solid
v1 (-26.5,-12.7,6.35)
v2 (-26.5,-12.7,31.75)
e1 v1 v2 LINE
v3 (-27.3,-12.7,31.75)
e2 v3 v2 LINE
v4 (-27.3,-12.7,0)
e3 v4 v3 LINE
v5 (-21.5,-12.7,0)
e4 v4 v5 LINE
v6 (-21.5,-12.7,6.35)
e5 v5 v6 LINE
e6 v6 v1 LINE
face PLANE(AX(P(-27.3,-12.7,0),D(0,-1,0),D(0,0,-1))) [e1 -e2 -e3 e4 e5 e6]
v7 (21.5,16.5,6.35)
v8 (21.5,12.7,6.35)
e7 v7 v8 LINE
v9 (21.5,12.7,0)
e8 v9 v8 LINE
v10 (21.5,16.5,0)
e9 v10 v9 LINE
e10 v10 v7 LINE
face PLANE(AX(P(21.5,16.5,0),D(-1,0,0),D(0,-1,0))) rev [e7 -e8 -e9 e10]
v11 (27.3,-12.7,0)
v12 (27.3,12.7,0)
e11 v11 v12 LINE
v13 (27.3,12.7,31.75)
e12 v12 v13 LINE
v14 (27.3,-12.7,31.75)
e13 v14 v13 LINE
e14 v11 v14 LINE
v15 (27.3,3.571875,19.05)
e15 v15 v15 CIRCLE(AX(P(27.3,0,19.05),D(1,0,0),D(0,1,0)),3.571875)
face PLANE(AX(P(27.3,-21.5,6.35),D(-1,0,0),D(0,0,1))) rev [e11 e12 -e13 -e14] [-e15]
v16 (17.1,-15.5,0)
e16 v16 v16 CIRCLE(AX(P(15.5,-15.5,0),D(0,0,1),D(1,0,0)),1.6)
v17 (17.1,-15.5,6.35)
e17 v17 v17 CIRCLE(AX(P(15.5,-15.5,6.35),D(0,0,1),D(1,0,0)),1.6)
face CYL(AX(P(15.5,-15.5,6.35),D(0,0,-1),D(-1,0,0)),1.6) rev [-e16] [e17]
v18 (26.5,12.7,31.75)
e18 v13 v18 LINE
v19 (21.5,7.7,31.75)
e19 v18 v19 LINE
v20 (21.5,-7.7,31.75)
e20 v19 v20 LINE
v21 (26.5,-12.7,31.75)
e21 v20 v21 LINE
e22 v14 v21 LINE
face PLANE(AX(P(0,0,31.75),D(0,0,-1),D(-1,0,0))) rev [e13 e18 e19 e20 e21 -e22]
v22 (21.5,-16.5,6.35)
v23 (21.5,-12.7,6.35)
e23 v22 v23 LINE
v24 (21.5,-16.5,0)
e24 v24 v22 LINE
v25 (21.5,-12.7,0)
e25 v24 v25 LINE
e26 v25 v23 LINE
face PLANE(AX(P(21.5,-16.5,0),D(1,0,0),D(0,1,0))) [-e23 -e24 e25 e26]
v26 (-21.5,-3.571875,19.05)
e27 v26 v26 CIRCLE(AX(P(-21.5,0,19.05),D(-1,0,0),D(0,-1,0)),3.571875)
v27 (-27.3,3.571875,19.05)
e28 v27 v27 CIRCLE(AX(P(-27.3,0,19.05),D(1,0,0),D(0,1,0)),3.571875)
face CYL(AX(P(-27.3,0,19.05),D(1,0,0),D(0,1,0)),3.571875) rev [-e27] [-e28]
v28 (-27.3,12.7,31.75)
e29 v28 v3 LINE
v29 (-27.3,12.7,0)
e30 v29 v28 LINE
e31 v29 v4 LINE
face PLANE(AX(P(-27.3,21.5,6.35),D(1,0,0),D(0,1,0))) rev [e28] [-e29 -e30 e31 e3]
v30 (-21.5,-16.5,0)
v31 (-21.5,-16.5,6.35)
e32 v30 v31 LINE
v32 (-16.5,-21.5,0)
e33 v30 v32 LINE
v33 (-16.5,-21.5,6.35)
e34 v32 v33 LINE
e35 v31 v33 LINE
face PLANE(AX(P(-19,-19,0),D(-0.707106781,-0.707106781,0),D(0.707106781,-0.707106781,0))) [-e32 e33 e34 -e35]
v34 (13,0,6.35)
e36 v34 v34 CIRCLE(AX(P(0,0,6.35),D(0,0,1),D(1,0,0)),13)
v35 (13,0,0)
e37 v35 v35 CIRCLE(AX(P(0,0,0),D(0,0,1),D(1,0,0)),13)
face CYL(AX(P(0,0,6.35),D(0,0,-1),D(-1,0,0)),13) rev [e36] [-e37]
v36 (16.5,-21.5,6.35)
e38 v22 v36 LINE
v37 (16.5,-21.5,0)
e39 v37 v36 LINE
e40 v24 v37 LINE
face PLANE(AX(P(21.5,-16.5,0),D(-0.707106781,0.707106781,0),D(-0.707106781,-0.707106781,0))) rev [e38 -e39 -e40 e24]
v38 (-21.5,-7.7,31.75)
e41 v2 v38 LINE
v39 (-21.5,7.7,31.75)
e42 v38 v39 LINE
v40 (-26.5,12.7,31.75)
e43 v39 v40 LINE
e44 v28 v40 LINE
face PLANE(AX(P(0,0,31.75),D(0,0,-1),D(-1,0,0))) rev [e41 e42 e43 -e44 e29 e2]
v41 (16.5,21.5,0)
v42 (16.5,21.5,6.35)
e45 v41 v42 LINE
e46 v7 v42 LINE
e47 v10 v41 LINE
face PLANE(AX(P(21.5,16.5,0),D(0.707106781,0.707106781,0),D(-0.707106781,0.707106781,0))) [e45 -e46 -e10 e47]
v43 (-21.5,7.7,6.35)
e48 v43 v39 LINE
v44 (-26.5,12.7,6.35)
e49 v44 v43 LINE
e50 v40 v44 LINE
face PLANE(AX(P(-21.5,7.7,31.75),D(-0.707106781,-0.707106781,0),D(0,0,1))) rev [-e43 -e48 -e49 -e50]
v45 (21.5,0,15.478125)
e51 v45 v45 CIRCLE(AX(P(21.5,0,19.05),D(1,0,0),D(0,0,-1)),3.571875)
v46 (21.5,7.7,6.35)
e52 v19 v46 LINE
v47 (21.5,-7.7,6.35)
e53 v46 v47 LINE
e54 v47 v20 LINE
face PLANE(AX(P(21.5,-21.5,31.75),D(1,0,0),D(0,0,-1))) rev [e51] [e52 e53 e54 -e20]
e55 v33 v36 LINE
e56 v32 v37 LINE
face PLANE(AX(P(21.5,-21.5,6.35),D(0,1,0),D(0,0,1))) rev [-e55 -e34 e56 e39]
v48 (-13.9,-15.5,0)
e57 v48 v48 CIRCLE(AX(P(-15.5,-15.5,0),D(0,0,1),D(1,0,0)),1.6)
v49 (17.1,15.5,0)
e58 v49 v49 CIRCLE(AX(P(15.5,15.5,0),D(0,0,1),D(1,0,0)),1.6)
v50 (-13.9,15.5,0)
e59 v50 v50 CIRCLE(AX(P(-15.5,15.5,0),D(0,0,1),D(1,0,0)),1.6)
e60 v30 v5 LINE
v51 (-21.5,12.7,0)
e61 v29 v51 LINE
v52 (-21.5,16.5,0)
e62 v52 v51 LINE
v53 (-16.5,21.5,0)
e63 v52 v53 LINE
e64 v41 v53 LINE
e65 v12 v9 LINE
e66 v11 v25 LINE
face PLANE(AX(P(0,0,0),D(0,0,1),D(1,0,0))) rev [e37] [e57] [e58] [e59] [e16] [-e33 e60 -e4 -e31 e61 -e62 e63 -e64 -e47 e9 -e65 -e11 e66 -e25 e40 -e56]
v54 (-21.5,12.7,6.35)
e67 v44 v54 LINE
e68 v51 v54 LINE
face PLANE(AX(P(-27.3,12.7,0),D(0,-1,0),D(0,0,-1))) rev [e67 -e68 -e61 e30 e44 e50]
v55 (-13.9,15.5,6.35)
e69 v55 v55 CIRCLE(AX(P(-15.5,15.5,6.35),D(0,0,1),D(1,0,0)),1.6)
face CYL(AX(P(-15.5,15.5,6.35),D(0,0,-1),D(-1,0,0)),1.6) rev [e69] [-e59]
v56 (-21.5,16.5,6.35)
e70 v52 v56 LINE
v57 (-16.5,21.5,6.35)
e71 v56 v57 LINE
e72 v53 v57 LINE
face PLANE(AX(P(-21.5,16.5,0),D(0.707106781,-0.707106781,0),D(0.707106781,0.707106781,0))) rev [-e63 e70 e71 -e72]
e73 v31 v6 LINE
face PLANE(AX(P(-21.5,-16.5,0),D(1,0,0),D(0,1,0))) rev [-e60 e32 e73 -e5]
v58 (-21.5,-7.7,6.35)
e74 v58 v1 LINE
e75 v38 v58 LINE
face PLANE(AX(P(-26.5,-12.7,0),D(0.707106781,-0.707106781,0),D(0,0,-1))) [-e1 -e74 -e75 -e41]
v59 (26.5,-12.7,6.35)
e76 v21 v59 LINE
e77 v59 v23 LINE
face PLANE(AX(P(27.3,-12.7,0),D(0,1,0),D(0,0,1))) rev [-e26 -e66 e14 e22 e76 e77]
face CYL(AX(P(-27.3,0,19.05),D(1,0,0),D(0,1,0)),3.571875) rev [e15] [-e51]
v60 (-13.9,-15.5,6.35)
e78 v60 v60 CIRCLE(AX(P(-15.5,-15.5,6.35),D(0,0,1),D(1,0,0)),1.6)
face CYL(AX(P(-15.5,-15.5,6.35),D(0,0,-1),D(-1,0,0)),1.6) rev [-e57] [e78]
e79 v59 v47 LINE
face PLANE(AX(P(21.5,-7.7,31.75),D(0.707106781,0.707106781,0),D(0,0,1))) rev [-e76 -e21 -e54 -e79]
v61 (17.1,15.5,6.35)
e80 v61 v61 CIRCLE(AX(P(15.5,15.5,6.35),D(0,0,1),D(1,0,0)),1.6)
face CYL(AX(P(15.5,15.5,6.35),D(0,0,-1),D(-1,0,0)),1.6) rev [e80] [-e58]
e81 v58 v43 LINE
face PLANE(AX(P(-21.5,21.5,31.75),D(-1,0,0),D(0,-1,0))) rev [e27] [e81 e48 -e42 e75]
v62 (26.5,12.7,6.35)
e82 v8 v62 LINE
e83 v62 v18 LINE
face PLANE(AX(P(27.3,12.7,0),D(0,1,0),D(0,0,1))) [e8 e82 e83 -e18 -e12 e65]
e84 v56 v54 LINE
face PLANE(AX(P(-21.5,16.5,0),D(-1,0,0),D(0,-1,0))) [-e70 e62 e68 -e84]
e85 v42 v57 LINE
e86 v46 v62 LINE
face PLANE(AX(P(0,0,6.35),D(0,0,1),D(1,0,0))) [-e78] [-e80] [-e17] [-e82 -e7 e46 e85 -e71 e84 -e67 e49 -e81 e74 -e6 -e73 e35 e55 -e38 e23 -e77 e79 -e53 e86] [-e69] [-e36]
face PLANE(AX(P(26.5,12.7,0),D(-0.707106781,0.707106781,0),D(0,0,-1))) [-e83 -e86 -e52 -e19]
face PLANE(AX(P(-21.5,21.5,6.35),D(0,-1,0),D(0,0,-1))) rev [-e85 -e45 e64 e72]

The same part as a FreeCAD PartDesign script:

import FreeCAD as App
import Part
import Sketcher
from FreeCAD import Vector


def edges_at(feature, points):
    """Names of the edges that pass closest to the given points."""
    edges = feature.Shape.Edges
    near = lambda p: min(range(len(edges)), key=lambda i: edges[i].distToShape(Part.Vertex(*p))[0])
    return sorted({f"Edge{near(p) + 1}" for p in points})

doc = App.newDocument("Part")
params = doc.addObject("Spreadsheet::Sheet", "Params")
for row, (alias, value) in enumerate([
    ("sketch1_diameter", "26 mm"),
    ("sketch1_diameter2", "3.2 mm"),
    ("sketch1_height", "43 mm"),
    ("sketch1_width", "54.6 mm"),
    ("pad1_length", "6.35 mm"),
    ("sketch2_height", "43 mm"),
    ("sketch2_width", "5.8 mm"),
    ("pad2_length", "25.4 mm"),
    ("sketch3_width", "5.8 mm"),
    ("sketch3_width2", "10.8 mm"),
    ("sketch3_height", "3.8 mm"),
    ("chamfer_size", "5 mm"),
], start=1):
    params.set(f"A{row}", alias)
    params.set(f"B{row}", "=" + value)
    params.setAlias(f"B{row}", alias)

body = doc.addObject("PartDesign::Body", "Body")

# Sketch on XY plane
sketch1 = body.newObject("Sketcher::SketchObject", "Sketch")
sketch1.AttachmentSupport = (doc.getObject("XY_Plane"), [""])
sketch1.MapMode = "FlatFace"
sketch1.addGeometry(Part.LineSegment(Vector(27.3, 21.5, 0), Vector(-27.3, 21.5, 0)), False)
sketch1.addGeometry(Part.LineSegment(Vector(-27.3, 21.5, 0), Vector(-27.3, -21.5, 0)), False)
sketch1.addGeometry(Part.LineSegment(Vector(-27.3, -21.5, 0), Vector(27.3, -21.5, 0)), False)
sketch1.addGeometry(Part.LineSegment(Vector(27.3, -21.5, 0), Vector(27.3, 21.5, 0)), False)
sketch1.addGeometry(Part.Circle(Vector(15.5, -15.5, 0), Vector(0, 0, 1), 1.6), False)
sketch1.addGeometry(Part.Circle(Vector(-15.5, -15.5, 0), Vector(0, 0, 1), 1.6), False)
sketch1.addGeometry(Part.Circle(Vector(15.5, 15.5, 0), Vector(0, 0, 1), 1.6), False)
sketch1.addGeometry(Part.Circle(Vector(0, 0, 0), Vector(0, 0, 1), 13), False)
sketch1.addGeometry(Part.Circle(Vector(-15.5, 15.5, 0), Vector(0, 0, 1), 1.6), False)
sketch1.addConstraint(Sketcher.Constraint("Coincident", 0, 2, 1, 1))
sketch1.addConstraint(Sketcher.Constraint("Coincident", 1, 2, 2, 1))
sketch1.addConstraint(Sketcher.Constraint("Coincident", 2, 2, 3, 1))
sketch1.addConstraint(Sketcher.Constraint("Coincident", 3, 2, 0, 1))
sketch1.addConstraint(Sketcher.Constraint("Horizontal", 0))
sketch1.addConstraint(Sketcher.Constraint("Vertical", 1))
sketch1.addConstraint(Sketcher.Constraint("Horizontal", 2))
sketch1.addConstraint(Sketcher.Constraint("Vertical", 3))
sketch1.addConstraint(Sketcher.Constraint("Coincident", 7, 3, -1, 1))
sketch1.addConstraint(Sketcher.Constraint("Equal", 4, 5))
sketch1.addConstraint(Sketcher.Constraint("Equal", 5, 6))
sketch1.addConstraint(Sketcher.Constraint("Equal", 6, 8))
sketch1.addConstraint(Sketcher.Constraint("Symmetric", 5, 3, 6, 3, -1, 1))
sketch1.addConstraint(Sketcher.Constraint("Symmetric", 4, 3, 8, 3, -1, 1))
sketch1.addConstraint(Sketcher.Constraint("Symmetric", 0, 2, 2, 2, -1, 1))
sketch1.addConstraint(Sketcher.Constraint("Symmetric", 4, 3, 5, 3, -2))
sketch1.addConstraint(Sketcher.Constraint("Diameter", 7, 26.0))
sketch1.addConstraint(Sketcher.Constraint("Diameter", 4, 3.2))
sketch1.addConstraint(Sketcher.Constraint("DistanceY", 1, 2, 1, 1, 43.0))
sketch1.addConstraint(Sketcher.Constraint("DistanceX", 0, 2, 0, 1, 54.6))
sketch1.addConstraint(Sketcher.Constraint("DistanceX", 5, 3, 4, 3, 31.0))
sketch1.addConstraint(Sketcher.Constraint("DistanceY", 4, 3, 6, 3, 31.0))
sketch1.setExpression("Constraints[16]", "Params.sketch1_diameter")
sketch1.setExpression("Constraints[17]", "Params.sketch1_diameter2")
sketch1.setExpression("Constraints[18]", "Params.sketch1_height")
sketch1.setExpression("Constraints[19]", "Params.sketch1_width")
pad1 = body.newObject("PartDesign::Pad", "Pad")
pad1.Profile = sketch1
pad1.setExpression("Length", "Params.pad1_length")

# Sketch on XY plane
sketch2 = body.newObject("Sketcher::SketchObject", "Sketch001")
sketch2.AttachmentSupport = (doc.getObject("XY_Plane"), [""])
sketch2.MapMode = "FlatFace"
sketch2.AttachmentOffset = App.Placement(Vector(0, 0, 6.35), App.Rotation())
sketch2.addGeometry(Part.LineSegment(Vector(-27.3, 21.5, 0), Vector(-27.3, -21.5, 0)), False)
sketch2.addGeometry(Part.LineSegment(Vector(-27.3, -21.5, 0), Vector(-21.5, -21.5, 0)), False)
sketch2.addGeometry(Part.LineSegment(Vector(-21.5, -21.5, 0), Vector(-21.5, 21.5, 0)), False)
sketch2.addGeometry(Part.LineSegment(Vector(-21.5, 21.5, 0), Vector(-27.3, 21.5, 0)), False)
sketch2.addGeometry(Part.LineSegment(Vector(21.5, 21.5, 0), Vector(21.5, -21.5, 0)), False)
sketch2.addGeometry(Part.LineSegment(Vector(21.5, -21.5, 0), Vector(27.3, -21.5, 0)), False)
sketch2.addGeometry(Part.LineSegment(Vector(27.3, -21.5, 0), Vector(27.3, 21.5, 0)), False)
sketch2.addGeometry(Part.LineSegment(Vector(27.3, 21.5, 0), Vector(21.5, 21.5, 0)), False)
sketch2.addConstraint(Sketcher.Constraint("Coincident", 0, 2, 1, 1))
sketch2.addConstraint(Sketcher.Constraint("Coincident", 1, 2, 2, 1))
sketch2.addConstraint(Sketcher.Constraint("Coincident", 2, 2, 3, 1))
sketch2.addConstraint(Sketcher.Constraint("Coincident", 3, 2, 0, 1))
sketch2.addConstraint(Sketcher.Constraint("Coincident", 4, 2, 5, 1))
sketch2.addConstraint(Sketcher.Constraint("Coincident", 5, 2, 6, 1))
sketch2.addConstraint(Sketcher.Constraint("Coincident", 6, 2, 7, 1))
sketch2.addConstraint(Sketcher.Constraint("Coincident", 7, 2, 4, 1))
sketch2.addConstraint(Sketcher.Constraint("Vertical", 0))
sketch2.addConstraint(Sketcher.Constraint("Horizontal", 1))
sketch2.addConstraint(Sketcher.Constraint("Vertical", 2))
sketch2.addConstraint(Sketcher.Constraint("Horizontal", 3))
sketch2.addConstraint(Sketcher.Constraint("Vertical", 4))
sketch2.addConstraint(Sketcher.Constraint("Horizontal", 5))
sketch2.addConstraint(Sketcher.Constraint("Vertical", 6))
sketch2.addConstraint(Sketcher.Constraint("Horizontal", 7))
sketch2.addConstraint(Sketcher.Constraint("Symmetric", 2, 2, 4, 2, -1, 1))
sketch2.addConstraint(Sketcher.Constraint("Symmetric", 0, 2, 6, 2, -1, 1))
sketch2.addConstraint(Sketcher.Constraint("Horizontal", 1, 2, 4, 2))
sketch2.addConstraint(Sketcher.Constraint("DistanceY", 0, 2, 0, 1, 43.0))
sketch2.addConstraint(Sketcher.Constraint("DistanceX", 1, 1, 1, 2, 5.8))
sketch2.addConstraint(Sketcher.Constraint("DistanceX", 1, 2, 4, 2, 43.0))
sketch2.setExpression("Constraints[19]", "Params.sketch2_height")
sketch2.setExpression("Constraints[20]", "Params.sketch2_width")
pad2 = body.newObject("PartDesign::Pad", "Pad001")
pad2.Profile = sketch2
pad2.setExpression("Length", "Params.pad2_length")

# Sketch on XY plane
sketch3 = body.newObject("Sketcher::SketchObject", "Sketch002")
sketch3.AttachmentSupport = (doc.getObject("XY_Plane"), [""])
sketch3.MapMode = "FlatFace"
sketch3.AttachmentOffset = App.Placement(Vector(0, 0, 6.35), App.Rotation())
sketch3.addGeometry(Part.LineSegment(Vector(-27.3, 12.7, 0), Vector(-21.5, 12.7, 0)), False)
sketch3.addGeometry(Part.LineSegment(Vector(-21.5, 12.7, 0), Vector(-21.5, 16.5, 0)), False)
sketch3.addGeometry(Part.LineSegment(Vector(-21.5, 16.5, 0), Vector(-16.5, 21.5, 0)), False)
sketch3.addGeometry(Part.LineSegment(Vector(-16.5, 21.5, 0), Vector(-27.3, 21.5, 0)), False)
sketch3.addGeometry(Part.LineSegment(Vector(-27.3, 21.5, 0), Vector(-27.3, 12.7, 0)), False)
sketch3.addGeometry(Part.LineSegment(Vector(16.5, 21.5, 0), Vector(21.5, 16.5, 0)), False)
sketch3.addGeometry(Part.LineSegment(Vector(21.5, 16.5, 0), Vector(21.5, 12.7, 0)), False)
sketch3.addGeometry(Part.LineSegment(Vector(21.5, 12.7, 0), Vector(27.3, 12.7, 0)), False)
sketch3.addGeometry(Part.LineSegment(Vector(27.3, 12.7, 0), Vector(27.3, 21.5, 0)), False)
sketch3.addGeometry(Part.LineSegment(Vector(27.3, 21.5, 0), Vector(16.5, 21.5, 0)), False)
sketch3.addGeometry(Part.LineSegment(Vector(27.3, -21.5, 0), Vector(27.3, -12.7, 0)), False)
sketch3.addGeometry(Part.LineSegment(Vector(27.3, -12.7, 0), Vector(21.5, -12.7, 0)), False)
sketch3.addGeometry(Part.LineSegment(Vector(21.5, -12.7, 0), Vector(21.5, -16.5, 0)), False)
sketch3.addGeometry(Part.LineSegment(Vector(21.5, -16.5, 0), Vector(16.5, -21.5, 0)), False)
sketch3.addGeometry(Part.LineSegment(Vector(16.5, -21.5, 0), Vector(27.3, -21.5, 0)), False)
sketch3.addGeometry(Part.LineSegment(Vector(-27.3, -21.5, 0), Vector(-16.5, -21.5, 0)), False)
sketch3.addGeometry(Part.LineSegment(Vector(-16.5, -21.5, 0), Vector(-21.5, -16.5, 0)), False)
sketch3.addGeometry(Part.LineSegment(Vector(-21.5, -16.5, 0), Vector(-21.5, -12.7, 0)), False)
sketch3.addGeometry(Part.LineSegment(Vector(-21.5, -12.7, 0), Vector(-27.3, -12.7, 0)), False)
sketch3.addGeometry(Part.LineSegment(Vector(-27.3, -12.7, 0), Vector(-27.3, -21.5, 0)), False)
sketch3.addConstraint(Sketcher.Constraint("Coincident", 0, 2, 1, 1))
sketch3.addConstraint(Sketcher.Constraint("Coincident", 1, 2, 2, 1))
sketch3.addConstraint(Sketcher.Constraint("Coincident", 2, 2, 3, 1))
sketch3.addConstraint(Sketcher.Constraint("Coincident", 3, 2, 4, 1))
sketch3.addConstraint(Sketcher.Constraint("Coincident", 4, 2, 0, 1))
sketch3.addConstraint(Sketcher.Constraint("Coincident", 5, 2, 6, 1))
sketch3.addConstraint(Sketcher.Constraint("Coincident", 6, 2, 7, 1))
sketch3.addConstraint(Sketcher.Constraint("Coincident", 7, 2, 8, 1))
sketch3.addConstraint(Sketcher.Constraint("Coincident", 8, 2, 9, 1))
sketch3.addConstraint(Sketcher.Constraint("Coincident", 9, 2, 5, 1))
sketch3.addConstraint(Sketcher.Constraint("Coincident", 10, 2, 11, 1))
sketch3.addConstraint(Sketcher.Constraint("Coincident", 11, 2, 12, 1))
sketch3.addConstraint(Sketcher.Constraint("Coincident", 12, 2, 13, 1))
sketch3.addConstraint(Sketcher.Constraint("Coincident", 13, 2, 14, 1))
sketch3.addConstraint(Sketcher.Constraint("Coincident", 14, 2, 10, 1))
sketch3.addConstraint(Sketcher.Constraint("Coincident", 15, 2, 16, 1))
sketch3.addConstraint(Sketcher.Constraint("Coincident", 16, 2, 17, 1))
sketch3.addConstraint(Sketcher.Constraint("Coincident", 17, 2, 18, 1))
sketch3.addConstraint(Sketcher.Constraint("Coincident", 18, 2, 19, 1))
sketch3.addConstraint(Sketcher.Constraint("Coincident", 19, 2, 15, 1))
sketch3.addConstraint(Sketcher.Constraint("Horizontal", 0))
sketch3.addConstraint(Sketcher.Constraint("Vertical", 1))
sketch3.addConstraint(Sketcher.Constraint("Horizontal", 3))
sketch3.addConstraint(Sketcher.Constraint("Vertical", 4))
sketch3.addConstraint(Sketcher.Constraint("Vertical", 6))
sketch3.addConstraint(Sketcher.Constraint("Horizontal", 7))
sketch3.addConstraint(Sketcher.Constraint("Vertical", 8))
sketch3.addConstraint(Sketcher.Constraint("Horizontal", 9))
sketch3.addConstraint(Sketcher.Constraint("Vertical", 10))
sketch3.addConstraint(Sketcher.Constraint("Horizontal", 11))
sketch3.addConstraint(Sketcher.Constraint("Vertical", 12))
sketch3.addConstraint(Sketcher.Constraint("Horizontal", 14))
sketch3.addConstraint(Sketcher.Constraint("Horizontal", 15))
sketch3.addConstraint(Sketcher.Constraint("Vertical", 17))
sketch3.addConstraint(Sketcher.Constraint("Horizontal", 18))
sketch3.addConstraint(Sketcher.Constraint("Vertical", 19))
sketch3.addConstraint(Sketcher.Constraint("Symmetric", 4, 2, 10, 2, -1, 1))
sketch3.addConstraint(Sketcher.Constraint("Symmetric", 1, 2, 12, 2, -1, 1))
sketch3.addConstraint(Sketcher.Constraint("Symmetric", 2, 2, 13, 2, -1, 1))
sketch3.addConstraint(Sketcher.Constraint("Symmetric", 9, 2, 15, 2, -1, 1))
sketch3.addConstraint(Sketcher.Constraint("Symmetric", 5, 2, 16, 2, -1, 1))
sketch3.addConstraint(Sketcher.Constraint("Symmetric", 7, 2, 18, 2, -1, 1))
sketch3.addConstraint(Sketcher.Constraint("Symmetric", 1, 2, 5, 2, -2))
sketch3.addConstraint(Sketcher.Constraint("Symmetric", 4, 2, 7, 2, -2))
sketch3.addConstraint(Sketcher.Constraint("Symmetric", 2, 2, 9, 2, -2))
sketch3.addConstraint(Sketcher.Constraint("Perpendicular", 2, 5))
sketch3.addConstraint(Sketcher.Constraint("DistanceX", 0, 1, 0, 2, 5.8))
sketch3.addConstraint(Sketcher.Constraint("DistanceX", 3, 2, 3, 1, 10.8))
sketch3.addConstraint(Sketcher.Constraint("DistanceY", 1, 1, 1, 2, 3.8))
sketch3.addConstraint(Sketcher.Constraint("DistanceX", 2, 2, 5, 2, 38.0))
sketch3.addConstraint(Sketcher.Constraint("DistanceY", 12, 2, 5, 2, 33.0))
sketch3.setExpression("Constraints[46]", "Params.sketch3_width")
sketch3.setExpression("Constraints[47]", "Params.sketch3_width2")
sketch3.setExpression("Constraints[48]", "Params.sketch3_height")
pocket1 = body.newObject("PartDesign::Pocket", "Pocket")
pocket1.Profile = sketch3
pocket1.Type = "ThroughAll"
pocket1.Midplane = True

# Sketch on YZ plane
sketch4 = body.newObject("Sketcher::SketchObject", "Sketch003")
sketch4.AttachmentSupport = (doc.getObject("YZ_Plane"), [""])
sketch4.MapMode = "FlatFace"
sketch4.AttachmentOffset = App.Placement(Vector(0, 0, -21.5), App.Rotation())
sketch4.addGeometry(Part.Circle(Vector(0, 19.05, 0), Vector(0, 0, 1), 3.571875), False)
sketch4.addConstraint(Sketcher.Constraint("PointOnObject", 0, 3, -2))
sketch4.addConstraint(Sketcher.Constraint("Diameter", 0, 7.14375))
sketch4.addConstraint(Sketcher.Constraint("DistanceY", -1, 1, 0, 3, 19.05))
pocket2 = body.newObject("PartDesign::Pocket", "Pocket001")
pocket2.Profile = sketch4
pocket2.Type = "ThroughAll"
pocket2.Midplane = True
doc.recompute()

chamfer = body.newObject("PartDesign::Chamfer", "Chamfer")
chamfer.Base = (pocket2, edges_at(pocket2, [
    (21.5, -12.7, 19.05),
    (-21.5, 12.7, 19.05),
    (-21.5, -12.7, 19.05),
    (21.5, 12.7, 19.05),
]))
chamfer.setExpression("Size", "Params.chamfer_size")

doc.recompute()
